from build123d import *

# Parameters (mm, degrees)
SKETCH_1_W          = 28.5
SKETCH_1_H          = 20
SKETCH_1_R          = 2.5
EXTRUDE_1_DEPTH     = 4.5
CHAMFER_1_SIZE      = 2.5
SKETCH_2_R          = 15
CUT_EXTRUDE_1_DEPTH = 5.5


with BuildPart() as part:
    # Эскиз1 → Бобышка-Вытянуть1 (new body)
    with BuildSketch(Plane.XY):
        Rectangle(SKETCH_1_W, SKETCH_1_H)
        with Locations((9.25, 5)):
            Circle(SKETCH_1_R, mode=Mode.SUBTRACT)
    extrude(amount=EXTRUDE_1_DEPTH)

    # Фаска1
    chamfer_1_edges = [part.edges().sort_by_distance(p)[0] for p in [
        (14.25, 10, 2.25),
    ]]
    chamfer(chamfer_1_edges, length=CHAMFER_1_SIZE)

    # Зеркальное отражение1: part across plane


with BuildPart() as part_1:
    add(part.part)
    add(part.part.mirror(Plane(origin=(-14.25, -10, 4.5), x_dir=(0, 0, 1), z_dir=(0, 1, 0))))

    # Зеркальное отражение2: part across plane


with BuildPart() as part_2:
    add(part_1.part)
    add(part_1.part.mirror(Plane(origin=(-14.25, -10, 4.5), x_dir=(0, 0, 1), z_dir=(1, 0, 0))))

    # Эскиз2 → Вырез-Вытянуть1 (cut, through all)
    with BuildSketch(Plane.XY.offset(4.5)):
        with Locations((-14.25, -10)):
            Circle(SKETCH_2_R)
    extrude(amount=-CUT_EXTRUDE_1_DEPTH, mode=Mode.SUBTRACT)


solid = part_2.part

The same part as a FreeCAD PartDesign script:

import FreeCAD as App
import Part
import Sketcher

V = App.Vector
Q = App.Units.Quantity


def edges_at(feature, points):
    """Names of the edges that pass closest to the given points."""
    edges = feature.Shape.Edges
    near = lambda p: min(range(len(edges)), key=lambda i: edges[i].distToShape(Part.Vertex(*p))[0])
    return sorted({f"Edge{near(p) + 1}" for p in points})


def add_polygon(sketch, points):
    """Adds a closed chain of lines whose ends are joined by coincident constraints."""
    first, n = sketch.GeometryCount, len(points)
    for a, b in zip(points, points[1:] + points[:1]):
        sketch.addGeometry(Part.LineSegment(App.Vector(*a, 0), App.Vector(*b, 0)), False)
    for i in range(n):
        sketch.addConstraint(Sketcher.Constraint("Coincident", first + i, 2, first + (i + 1) % n, 1))

doc = App.newDocument("Part")
params = doc.addObject("Spreadsheet::Sheet", "Params")
for row, (alias, value) in enumerate([
    ("sketch1_diameter", "5 mm"),
    ("sketch1_height", "20 mm"),
    ("sketch1_width", "28.5 mm"),
    ("pad1_length", "4.5 mm"),
    ("chamfer_size", "2.5 mm"),
    ("sketch2_diameter", "30 mm"),
], start=1):
    params.set(f"A{row}", alias)
    params.set(f"B{row}", "=" + value)
    params.setAlias(f"B{row}", alias)

body = doc.addObject("PartDesign::Body", "Body")

sketch1 = body.newObject("Sketcher::SketchObject", "Sketch")
sketch1.AttachmentSupport = (doc.getObject("XY_Plane"), [""])
sketch1.MapMode = "FlatFace"
add_polygon(sketch1, [(-14.2, 10), (-14.2, -10), (14.2, -10), (14.2, 10)])
sketch1.addGeometry(Part.Circle(V(9.2, 5, 0), V(0, 0, 1), 2.5), False)
sketch1.addConstraint(Sketcher.Constraint("Vertical", 0))
sketch1.addConstraint(Sketcher.Constraint("Horizontal", 1))
sketch1.addConstraint(Sketcher.Constraint("Vertical", 2))
sketch1.addConstraint(Sketcher.Constraint("Horizontal", 3))
sketch1.addConstraint(Sketcher.Constraint("Symmetric", 0, 2, 2, 2, -1, 1))
sketch1.addConstraint(Sketcher.Constraint("Diameter", 4, Q("5 mm")))
sketch1.addConstraint(Sketcher.Constraint("DistanceY", 0, 2, 0, 1, Q("20 mm")))
sketch1.addConstraint(Sketcher.Constraint("DistanceX", 1, 1, 1, 2, Q("28.5 mm")))
sketch1.addConstraint(Sketcher.Constraint("DistanceY", -1, 1, 4, 3, Q("5 mm")))
sketch1.addConstraint(Sketcher.Constraint("DistanceX", 4, 3, 1, 2, Q("5 mm")))
sketch1.setExpression("Constraints[9]", "Params.sketch1_diameter")
sketch1.setExpression("Constraints[10]", "Params.sketch1_height")
sketch1.setExpression("Constraints[11]", "Params.sketch1_width")
pad1 = body.newObject("PartDesign::Pad", "Pad")
pad1.Profile = sketch1
pad1.setExpression("Length", "Params.pad1_length")
doc.recompute()

chamfer = body.newObject("PartDesign::Chamfer", "Chamfer")
chamfer.Base = (pad1, edges_at(pad1, [(14.25, 10, 2.25)]))
chamfer.setExpression("Size", "Params.chamfer_size")
body2 = doc.addObject("PartDesign::Body", "Body001")
doc.recompute()

body2.BaseFeature = body
doc.recompute()

mirroring = doc.addObject("Part::Mirroring", "Mirroring")
mirroring.Source = body
mirroring.Base = V(-14.25, -10, 4.5)
mirroring.Normal = V(0, 1, 0)
body3 = doc.addObject("PartDesign::Body", "Body002")
body3.BaseFeature = mirroring
boolean = body2.newObject("PartDesign::Boolean", "Boolean")
boolean.Type = "Fuse"
boolean.addObjects([body3])
doc.recompute()
body4 = doc.addObject("PartDesign::Body", "Body003")
doc.recompute()

body4.BaseFeature = body2
doc.recompute()

mirroring2 = doc.addObject("Part::Mirroring", "Mirroring001")
mirroring2.Source = body2
mirroring2.Base = V(-14.25, -10, 4.5)
mirroring2.Normal = V(1, 0, 0)
body5 = doc.addObject("PartDesign::Body", "Body004")
body5.BaseFeature = mirroring2
boolean2 = body4.newObject("PartDesign::Boolean", "Boolean001")
boolean2.Type = "Fuse"
boolean2.addObjects([body5])
doc.recompute()

sketch2 = body4.newObject("Sketcher::SketchObject", "Sketch001")
sketch2.AttachmentSupport = (doc.getObject("XY_Plane003"), [""])
sketch2.MapMode = "FlatFace"
sketch2.AttachmentOffset = App.Placement(V(0, 0, 4.5), App.Rotation())
sketch2.addGeometry(Part.Circle(V(-14, -10, 0), V(0, 0, 1), 15), False)
sketch2.addConstraint(Sketcher.Constraint("Diameter", 0, Q("30 mm")))
sketch2.addConstraint(Sketcher.Constraint("DistanceY", 0, 3, -1, 1, Q("10 mm")))
sketch2.addConstraint(Sketcher.Constraint("DistanceX", 0, 3, -1, 1, Q("14.25 mm")))
sketch2.setExpression("Constraints[0]", "Params.sketch2_diameter")
pocket1 = body4.newObject("PartDesign::Pocket", "Pocket")
pocket1.Profile = sketch2
pocket1.Type = "ThroughAll"
mirroring.Visibility = False
mirroring2.Visibility = False

doc.recompute()
